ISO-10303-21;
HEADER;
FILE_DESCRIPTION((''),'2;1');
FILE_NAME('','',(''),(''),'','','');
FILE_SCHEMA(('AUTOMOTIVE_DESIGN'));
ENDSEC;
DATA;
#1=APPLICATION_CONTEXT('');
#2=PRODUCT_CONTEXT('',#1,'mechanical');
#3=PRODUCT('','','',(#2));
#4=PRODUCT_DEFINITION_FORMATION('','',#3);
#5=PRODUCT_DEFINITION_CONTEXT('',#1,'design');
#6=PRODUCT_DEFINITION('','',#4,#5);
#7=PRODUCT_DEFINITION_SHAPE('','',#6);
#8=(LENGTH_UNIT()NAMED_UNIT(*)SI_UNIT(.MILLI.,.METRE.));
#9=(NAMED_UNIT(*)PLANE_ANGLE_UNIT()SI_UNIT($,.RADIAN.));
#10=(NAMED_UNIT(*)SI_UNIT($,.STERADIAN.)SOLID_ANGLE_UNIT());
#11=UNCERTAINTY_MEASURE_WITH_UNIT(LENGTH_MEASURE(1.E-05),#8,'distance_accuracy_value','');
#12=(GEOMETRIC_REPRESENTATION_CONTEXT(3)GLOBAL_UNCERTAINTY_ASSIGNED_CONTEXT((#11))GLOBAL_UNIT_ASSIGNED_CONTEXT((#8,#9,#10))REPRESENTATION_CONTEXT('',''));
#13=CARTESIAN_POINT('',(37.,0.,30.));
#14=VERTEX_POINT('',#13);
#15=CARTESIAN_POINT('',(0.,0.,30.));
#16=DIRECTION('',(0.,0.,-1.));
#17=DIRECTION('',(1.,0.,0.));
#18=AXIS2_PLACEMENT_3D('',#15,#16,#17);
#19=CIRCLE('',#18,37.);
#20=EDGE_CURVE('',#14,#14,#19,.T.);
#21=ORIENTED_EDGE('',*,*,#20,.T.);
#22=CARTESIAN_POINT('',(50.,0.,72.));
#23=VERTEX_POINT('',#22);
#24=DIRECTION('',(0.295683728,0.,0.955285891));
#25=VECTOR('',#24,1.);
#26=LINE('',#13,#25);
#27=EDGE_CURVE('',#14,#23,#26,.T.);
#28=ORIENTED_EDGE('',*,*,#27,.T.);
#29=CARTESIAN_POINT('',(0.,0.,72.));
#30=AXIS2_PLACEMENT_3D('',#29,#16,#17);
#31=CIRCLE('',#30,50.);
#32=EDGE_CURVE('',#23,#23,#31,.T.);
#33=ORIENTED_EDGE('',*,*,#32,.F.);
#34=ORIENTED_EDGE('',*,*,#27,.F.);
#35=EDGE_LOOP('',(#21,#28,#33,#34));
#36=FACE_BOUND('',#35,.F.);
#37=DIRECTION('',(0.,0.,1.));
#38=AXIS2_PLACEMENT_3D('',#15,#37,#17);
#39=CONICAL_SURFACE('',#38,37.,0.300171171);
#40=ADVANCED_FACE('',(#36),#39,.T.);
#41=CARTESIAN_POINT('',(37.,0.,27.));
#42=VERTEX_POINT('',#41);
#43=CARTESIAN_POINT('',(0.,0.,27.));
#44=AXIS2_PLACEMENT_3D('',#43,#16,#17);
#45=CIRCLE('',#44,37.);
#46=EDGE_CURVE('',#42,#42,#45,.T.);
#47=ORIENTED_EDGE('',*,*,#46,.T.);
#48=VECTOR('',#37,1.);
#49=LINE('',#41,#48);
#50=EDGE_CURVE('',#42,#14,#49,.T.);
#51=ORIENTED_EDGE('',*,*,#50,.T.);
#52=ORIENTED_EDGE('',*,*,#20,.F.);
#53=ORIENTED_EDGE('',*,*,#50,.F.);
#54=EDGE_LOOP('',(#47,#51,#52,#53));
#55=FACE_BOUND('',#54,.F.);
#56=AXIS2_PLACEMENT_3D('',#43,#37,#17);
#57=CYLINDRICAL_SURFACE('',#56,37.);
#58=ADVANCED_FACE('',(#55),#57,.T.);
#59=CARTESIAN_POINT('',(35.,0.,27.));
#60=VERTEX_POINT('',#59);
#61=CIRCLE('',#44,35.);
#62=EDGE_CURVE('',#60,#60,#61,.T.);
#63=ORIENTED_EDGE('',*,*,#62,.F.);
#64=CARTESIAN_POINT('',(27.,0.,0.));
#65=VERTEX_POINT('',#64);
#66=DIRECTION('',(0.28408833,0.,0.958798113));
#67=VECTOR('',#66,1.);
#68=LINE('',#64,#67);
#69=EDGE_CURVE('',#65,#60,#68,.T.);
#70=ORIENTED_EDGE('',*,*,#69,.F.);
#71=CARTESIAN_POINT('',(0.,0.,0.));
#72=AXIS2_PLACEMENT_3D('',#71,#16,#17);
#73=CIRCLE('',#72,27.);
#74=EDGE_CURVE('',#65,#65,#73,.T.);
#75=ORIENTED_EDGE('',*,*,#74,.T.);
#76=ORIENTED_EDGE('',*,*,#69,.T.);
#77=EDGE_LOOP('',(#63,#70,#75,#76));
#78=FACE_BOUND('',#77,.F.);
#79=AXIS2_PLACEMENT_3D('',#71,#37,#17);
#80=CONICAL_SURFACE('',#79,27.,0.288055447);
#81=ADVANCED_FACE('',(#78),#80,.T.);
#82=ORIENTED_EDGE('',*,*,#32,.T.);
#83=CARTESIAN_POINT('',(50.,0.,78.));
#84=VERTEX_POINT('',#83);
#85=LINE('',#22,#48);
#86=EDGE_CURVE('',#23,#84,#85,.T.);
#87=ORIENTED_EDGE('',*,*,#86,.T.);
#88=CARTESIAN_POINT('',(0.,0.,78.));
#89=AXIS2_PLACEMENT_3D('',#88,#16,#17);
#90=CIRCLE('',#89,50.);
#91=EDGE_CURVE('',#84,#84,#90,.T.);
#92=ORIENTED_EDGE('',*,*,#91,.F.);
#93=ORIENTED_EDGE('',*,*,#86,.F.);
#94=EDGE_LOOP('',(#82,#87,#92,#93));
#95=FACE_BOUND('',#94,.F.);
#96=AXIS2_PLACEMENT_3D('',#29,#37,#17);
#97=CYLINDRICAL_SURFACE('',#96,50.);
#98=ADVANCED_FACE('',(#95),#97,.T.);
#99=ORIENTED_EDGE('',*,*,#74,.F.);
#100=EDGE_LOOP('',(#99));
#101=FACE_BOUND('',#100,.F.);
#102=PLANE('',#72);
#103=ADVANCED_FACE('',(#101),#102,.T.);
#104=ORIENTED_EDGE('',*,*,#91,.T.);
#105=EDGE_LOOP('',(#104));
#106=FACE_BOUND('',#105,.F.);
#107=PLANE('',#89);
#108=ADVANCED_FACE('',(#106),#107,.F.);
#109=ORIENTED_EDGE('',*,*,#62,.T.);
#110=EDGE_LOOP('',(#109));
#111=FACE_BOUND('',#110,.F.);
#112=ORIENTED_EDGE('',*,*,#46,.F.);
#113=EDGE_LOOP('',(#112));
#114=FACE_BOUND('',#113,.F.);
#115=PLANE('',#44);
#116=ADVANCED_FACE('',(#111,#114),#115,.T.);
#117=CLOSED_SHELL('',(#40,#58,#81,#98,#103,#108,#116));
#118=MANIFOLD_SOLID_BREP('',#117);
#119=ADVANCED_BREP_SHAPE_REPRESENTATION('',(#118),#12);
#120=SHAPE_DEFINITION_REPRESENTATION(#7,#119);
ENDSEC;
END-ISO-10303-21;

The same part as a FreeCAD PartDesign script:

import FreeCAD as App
import Part
import Sketcher

V = App.Vector
Q = App.Units.Quantity

doc = App.newDocument("Part")
params = doc.addObject("Spreadsheet::Sheet", "Params")
for row, (alias, value) in enumerate([
    ("sketch1_width", "27 mm"),
    ("sketch1_width2", "2 mm"),
    ("sketch1_width3", "50 mm"),
    ("sketch1_height", "3 mm"),
    ("sketch1_height2", "6 mm"),
    ("revolution_angle", "360 deg"),
], start=1):
    params.set(f"A{row}", alias)
    params.set(f"B{row}", "=" + value)
    params.setAlias(f"B{row}", alias)

body = doc.addObject("PartDesign::Body", "Body")

sketch1 = body.newObject("Sketcher::SketchObject", "Sketch")
sketch1.AttachmentSupport = (doc.getObject("XZ_Plane"), [""])
sketch1.MapMode = "FlatFace"
sketch1.addGeometry([
    Part.LineSegment(V(0, 0, 0), V(27, 0, 0)),
    Part.LineSegment(V(27, 0, 0), V(35, 27, 0)),
    Part.LineSegment(V(35, 27, 0), V(37, 27, 0)),
    Part.LineSegment(V(37, 27, 0), V(37, 30, 0)),
    Part.LineSegment(V(37, 30, 0), V(50, 72, 0)),
    Part.LineSegment(V(50, 72, 0), V(50, 78, 0)),
    Part.LineSegment(V(50, 78, 0), V(0, 78, 0)),
    Part.LineSegment(V(0, 78, 0), V(0, 0, 0)),
], False)
sketch1.addConstraint([
    Sketcher.Constraint("Coincident", 0, 2, 1, 1),
    Sketcher.Constraint("Coincident", 1, 2, 2, 1),
    Sketcher.Constraint("Coincident", 2, 2, 3, 1),
    Sketcher.Constraint("Coincident", 3, 2, 4, 1),
    Sketcher.Constraint("Coincident", 4, 2, 5, 1),
    Sketcher.Constraint("Coincident", 5, 2, 6, 1),
    Sketcher.Constraint("Coincident", 6, 2, 7, 1),
    Sketcher.Constraint("Coincident", 7, 2, 0, 1),
    Sketcher.Constraint("Horizontal", 0),
    Sketcher.Constraint("Horizontal", 2),
    Sketcher.Constraint("Vertical", 3),
    Sketcher.Constraint("Vertical", 5),
    Sketcher.Constraint("Horizontal", 6),
    Sketcher.Constraint("Vertical", 7),
    Sketcher.Constraint("Coincident", 7, 2, -1, 1),
    Sketcher.Constraint("DistanceX", 0, 1, 0, 2, Q("27 mm")),
    Sketcher.Constraint("DistanceX", 2, 1, 2, 2, Q("2 mm")),
    Sketcher.Constraint("DistanceX", 6, 2, 6, 1, Q("50 mm")),
    Sketcher.Constraint("DistanceY", 3, 1, 3, 2, Q("3 mm")),
    Sketcher.Constraint("DistanceY", 5, 1, 5, 2, Q("6 mm")),
    Sketcher.Constraint("DistanceY", 7, 2, 7, 1, Q("78 mm")),
    Sketcher.Constraint("DistanceX", -1, 1, 1, 2, Q("35 mm")),
    Sketcher.Constraint("DistanceY", -1, 1, 1, 2, Q("27 mm")),
])
sketch1.setExpression("Constraints[15]", "Params.sketch1_width")
sketch1.setExpression("Constraints[16]", "Params.sketch1_width2")
sketch1.setExpression("Constraints[17]", "Params.sketch1_width3")
sketch1.setExpression("Constraints[18]", "Params.sketch1_height")
sketch1.setExpression("Constraints[19]", "Params.sketch1_height2")
revolution = body.newObject("PartDesign::Revolution", "Revolution")
revolution.Profile = sketch1
revolution.ReferenceAxis = (sketch1, ["V_Axis"])
revolution.setExpression("Angle", "Params.revolution_angle")

doc.recompute()
